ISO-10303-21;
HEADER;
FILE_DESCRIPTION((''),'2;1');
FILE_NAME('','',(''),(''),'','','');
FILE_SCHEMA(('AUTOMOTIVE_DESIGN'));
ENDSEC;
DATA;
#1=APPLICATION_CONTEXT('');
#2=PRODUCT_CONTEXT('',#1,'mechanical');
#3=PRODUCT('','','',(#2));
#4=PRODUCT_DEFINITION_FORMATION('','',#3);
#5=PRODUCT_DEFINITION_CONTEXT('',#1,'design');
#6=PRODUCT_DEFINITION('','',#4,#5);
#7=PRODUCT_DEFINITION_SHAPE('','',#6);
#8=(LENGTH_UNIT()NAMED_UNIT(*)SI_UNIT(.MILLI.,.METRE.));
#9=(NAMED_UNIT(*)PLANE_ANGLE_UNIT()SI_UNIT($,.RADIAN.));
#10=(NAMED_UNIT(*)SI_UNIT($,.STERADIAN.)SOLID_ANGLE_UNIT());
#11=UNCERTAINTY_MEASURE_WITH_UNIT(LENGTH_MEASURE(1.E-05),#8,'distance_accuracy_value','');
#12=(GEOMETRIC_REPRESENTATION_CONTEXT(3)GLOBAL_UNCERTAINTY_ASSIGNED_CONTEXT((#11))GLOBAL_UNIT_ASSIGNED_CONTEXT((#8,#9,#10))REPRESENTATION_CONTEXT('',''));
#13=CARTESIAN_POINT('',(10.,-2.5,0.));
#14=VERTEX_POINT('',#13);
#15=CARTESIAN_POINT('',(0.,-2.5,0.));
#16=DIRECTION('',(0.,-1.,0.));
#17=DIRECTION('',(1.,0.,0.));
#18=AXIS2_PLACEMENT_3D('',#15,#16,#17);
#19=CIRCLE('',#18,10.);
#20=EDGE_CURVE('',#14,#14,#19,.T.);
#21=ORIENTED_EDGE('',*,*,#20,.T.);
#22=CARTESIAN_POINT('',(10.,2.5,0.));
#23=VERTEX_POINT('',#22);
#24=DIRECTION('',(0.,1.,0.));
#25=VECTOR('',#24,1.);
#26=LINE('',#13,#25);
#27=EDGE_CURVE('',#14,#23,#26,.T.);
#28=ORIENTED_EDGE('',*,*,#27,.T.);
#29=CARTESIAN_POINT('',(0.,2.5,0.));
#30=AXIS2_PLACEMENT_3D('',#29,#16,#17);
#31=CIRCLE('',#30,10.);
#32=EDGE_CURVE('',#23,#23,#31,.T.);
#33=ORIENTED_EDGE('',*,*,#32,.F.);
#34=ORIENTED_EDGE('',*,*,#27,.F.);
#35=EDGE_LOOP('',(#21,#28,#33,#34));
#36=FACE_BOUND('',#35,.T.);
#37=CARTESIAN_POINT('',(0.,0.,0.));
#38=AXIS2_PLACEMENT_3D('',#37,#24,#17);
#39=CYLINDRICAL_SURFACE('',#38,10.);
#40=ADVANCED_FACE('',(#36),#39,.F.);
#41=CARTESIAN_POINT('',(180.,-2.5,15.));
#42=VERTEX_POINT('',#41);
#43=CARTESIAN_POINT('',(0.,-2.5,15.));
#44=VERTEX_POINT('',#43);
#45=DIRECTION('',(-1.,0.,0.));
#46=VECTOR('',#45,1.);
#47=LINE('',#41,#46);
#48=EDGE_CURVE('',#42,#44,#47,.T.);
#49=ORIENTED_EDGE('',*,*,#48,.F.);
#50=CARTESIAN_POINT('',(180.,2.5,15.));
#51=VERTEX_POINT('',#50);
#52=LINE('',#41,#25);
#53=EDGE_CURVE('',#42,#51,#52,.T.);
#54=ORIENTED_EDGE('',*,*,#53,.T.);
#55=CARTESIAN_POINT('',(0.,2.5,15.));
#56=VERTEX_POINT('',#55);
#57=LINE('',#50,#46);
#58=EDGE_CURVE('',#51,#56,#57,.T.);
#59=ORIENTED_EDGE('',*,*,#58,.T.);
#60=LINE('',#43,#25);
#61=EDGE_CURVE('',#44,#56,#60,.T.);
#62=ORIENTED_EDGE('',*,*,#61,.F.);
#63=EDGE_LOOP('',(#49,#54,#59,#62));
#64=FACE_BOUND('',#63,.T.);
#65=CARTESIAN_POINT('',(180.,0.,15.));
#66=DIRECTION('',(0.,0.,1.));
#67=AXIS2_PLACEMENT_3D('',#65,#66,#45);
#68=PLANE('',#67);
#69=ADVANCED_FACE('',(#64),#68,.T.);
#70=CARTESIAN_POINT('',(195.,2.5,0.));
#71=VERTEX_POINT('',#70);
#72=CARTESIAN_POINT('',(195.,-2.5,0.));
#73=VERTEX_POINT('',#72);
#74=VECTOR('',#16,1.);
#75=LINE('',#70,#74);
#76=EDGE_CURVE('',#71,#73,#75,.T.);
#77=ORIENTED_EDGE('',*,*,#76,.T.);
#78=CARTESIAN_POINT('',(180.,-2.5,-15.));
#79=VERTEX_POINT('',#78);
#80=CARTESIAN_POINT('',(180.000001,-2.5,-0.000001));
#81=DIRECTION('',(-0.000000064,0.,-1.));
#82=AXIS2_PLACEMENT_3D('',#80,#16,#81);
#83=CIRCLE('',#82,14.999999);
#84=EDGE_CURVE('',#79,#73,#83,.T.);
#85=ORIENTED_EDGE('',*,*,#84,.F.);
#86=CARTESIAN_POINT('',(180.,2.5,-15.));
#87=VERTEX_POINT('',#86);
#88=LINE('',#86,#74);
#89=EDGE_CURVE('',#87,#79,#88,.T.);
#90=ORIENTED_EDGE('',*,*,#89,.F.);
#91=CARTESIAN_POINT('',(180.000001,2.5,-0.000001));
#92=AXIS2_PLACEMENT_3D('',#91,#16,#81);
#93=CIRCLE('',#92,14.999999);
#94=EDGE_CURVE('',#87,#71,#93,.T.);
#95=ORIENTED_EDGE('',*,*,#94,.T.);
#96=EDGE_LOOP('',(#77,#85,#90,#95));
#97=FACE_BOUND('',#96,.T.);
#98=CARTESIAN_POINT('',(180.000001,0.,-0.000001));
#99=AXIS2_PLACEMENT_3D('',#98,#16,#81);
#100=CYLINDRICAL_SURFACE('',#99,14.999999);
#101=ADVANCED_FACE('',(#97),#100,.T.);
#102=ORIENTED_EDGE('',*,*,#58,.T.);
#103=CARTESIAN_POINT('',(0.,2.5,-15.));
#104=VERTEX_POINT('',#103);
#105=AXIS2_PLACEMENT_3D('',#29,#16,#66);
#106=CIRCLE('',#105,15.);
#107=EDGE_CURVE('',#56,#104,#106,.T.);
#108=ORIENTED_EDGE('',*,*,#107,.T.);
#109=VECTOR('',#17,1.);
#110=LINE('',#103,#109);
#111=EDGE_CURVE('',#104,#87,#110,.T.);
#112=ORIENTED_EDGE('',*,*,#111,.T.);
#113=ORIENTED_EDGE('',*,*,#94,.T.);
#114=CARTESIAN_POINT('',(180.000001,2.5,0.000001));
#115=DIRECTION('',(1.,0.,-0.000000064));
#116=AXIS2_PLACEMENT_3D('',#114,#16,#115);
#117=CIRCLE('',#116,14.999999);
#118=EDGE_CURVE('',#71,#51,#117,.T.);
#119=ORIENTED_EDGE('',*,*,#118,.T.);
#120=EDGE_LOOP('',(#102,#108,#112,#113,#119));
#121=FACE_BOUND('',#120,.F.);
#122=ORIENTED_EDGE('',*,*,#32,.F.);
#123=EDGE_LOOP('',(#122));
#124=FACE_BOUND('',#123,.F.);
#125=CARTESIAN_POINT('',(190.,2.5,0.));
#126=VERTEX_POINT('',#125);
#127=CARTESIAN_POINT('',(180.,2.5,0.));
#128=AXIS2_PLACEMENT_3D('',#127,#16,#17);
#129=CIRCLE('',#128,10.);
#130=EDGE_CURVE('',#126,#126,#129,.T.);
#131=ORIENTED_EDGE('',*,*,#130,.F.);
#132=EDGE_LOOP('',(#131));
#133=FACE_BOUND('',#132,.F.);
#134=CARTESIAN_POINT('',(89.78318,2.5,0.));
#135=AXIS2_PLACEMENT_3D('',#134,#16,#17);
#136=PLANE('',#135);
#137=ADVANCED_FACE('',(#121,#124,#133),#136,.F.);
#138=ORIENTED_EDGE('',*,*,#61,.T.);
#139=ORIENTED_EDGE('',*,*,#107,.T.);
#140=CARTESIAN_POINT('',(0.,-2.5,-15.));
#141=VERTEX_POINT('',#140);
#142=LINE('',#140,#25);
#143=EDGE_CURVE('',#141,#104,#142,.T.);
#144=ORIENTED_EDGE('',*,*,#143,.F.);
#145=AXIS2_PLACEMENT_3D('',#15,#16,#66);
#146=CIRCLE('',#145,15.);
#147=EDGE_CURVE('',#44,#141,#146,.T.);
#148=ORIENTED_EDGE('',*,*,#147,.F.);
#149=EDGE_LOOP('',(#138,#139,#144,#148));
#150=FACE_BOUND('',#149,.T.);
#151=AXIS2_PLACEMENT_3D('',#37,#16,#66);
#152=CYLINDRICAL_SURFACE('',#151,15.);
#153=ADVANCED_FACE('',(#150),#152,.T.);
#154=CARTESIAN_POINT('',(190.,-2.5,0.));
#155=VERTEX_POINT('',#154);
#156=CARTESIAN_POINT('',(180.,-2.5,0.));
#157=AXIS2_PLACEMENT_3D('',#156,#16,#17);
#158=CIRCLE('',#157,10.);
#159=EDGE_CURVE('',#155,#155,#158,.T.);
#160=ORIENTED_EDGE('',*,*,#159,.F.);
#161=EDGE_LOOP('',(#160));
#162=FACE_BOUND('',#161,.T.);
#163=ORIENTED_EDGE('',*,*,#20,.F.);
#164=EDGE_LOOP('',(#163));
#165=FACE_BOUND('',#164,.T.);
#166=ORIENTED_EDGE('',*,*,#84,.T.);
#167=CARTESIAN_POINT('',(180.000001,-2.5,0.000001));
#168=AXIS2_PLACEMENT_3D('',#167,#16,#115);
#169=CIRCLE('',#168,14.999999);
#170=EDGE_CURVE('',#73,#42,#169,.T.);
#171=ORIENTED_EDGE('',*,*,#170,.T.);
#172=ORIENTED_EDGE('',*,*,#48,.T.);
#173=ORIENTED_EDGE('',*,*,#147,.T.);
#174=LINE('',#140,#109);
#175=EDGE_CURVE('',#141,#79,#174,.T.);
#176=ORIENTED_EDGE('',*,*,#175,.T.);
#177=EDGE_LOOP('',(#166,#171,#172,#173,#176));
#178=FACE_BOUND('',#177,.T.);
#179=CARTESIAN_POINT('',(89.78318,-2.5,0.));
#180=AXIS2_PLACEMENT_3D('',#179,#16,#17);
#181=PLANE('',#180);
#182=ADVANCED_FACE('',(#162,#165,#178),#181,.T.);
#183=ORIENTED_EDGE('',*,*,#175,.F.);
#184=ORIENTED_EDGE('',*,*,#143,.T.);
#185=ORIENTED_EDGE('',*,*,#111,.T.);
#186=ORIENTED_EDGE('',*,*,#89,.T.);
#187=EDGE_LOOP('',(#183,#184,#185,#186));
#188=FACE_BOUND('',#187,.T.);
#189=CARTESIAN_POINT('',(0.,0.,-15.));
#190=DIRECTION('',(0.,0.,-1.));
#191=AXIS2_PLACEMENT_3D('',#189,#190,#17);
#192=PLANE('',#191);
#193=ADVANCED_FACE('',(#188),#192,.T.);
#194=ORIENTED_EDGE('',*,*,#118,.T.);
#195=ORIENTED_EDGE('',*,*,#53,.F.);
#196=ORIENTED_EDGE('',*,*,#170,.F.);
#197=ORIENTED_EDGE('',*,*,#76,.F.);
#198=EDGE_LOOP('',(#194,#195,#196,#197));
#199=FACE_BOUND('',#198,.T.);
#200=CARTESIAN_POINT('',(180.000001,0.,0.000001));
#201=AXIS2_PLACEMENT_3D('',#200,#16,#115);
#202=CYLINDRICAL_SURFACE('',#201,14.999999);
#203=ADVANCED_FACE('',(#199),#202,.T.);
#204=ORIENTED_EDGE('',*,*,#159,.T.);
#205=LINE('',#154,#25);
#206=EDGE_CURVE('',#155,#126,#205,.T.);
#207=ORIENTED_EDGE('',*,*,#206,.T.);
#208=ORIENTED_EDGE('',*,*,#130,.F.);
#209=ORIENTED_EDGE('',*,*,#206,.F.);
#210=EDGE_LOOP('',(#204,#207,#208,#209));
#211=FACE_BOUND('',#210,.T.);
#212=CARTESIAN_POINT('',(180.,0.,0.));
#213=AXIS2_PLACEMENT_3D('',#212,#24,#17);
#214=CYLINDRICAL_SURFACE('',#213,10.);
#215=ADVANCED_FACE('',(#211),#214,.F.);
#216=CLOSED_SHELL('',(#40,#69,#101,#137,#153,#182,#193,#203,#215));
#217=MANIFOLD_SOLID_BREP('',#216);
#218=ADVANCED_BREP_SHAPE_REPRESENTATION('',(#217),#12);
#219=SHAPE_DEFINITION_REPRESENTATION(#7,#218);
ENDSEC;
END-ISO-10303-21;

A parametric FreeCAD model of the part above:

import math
import FreeCAD as App
import Part
import Sketcher
Q = App.Units.Quantity

doc = App.newDocument("Part")
params = doc.addObject("Spreadsheet::Sheet", "Params")
for row, (alias, value) in enumerate([
    ("sketch1_diameter", "20 mm"),
    ("sketch1_radius", "14.999999 mm"),
    ("sketch1_width", "180 mm"),
    ("pad1_length", "5 mm"),
], start=1):
    params.set(f"A{row}", alias)
    params.set(f"B{row}", "=" + value)
    params.setAlias(f"B{row}", alias)

body = doc.addObject("PartDesign::Body", "Body")

# Sketch on XZ plane
sketch1 = doc.addObject("Sketcher::SketchObject", "Sketch")
body.addObject(sketch1)
sketch1.AttachmentSupport = (doc.XZ_Plane, [""])
sketch1.MapMode = "FlatFace"
sketch1.addGeometry([
    Part.LineSegment(App.Vector(0, -15, 0), App.Vector(180, -15, 0)),  # 0
    Part.ArcOfCircle(Part.Circle(App.Vector(180, 0, 0), App.Vector(0, 0, 1), 15), math.radians(-90), math.radians(0)),  # 1
    Part.ArcOfCircle(Part.Circle(App.Vector(180, 0, 0), App.Vector(0, 0, 1), 15), math.radians(0), math.radians(90)),  # 2
    Part.LineSegment(App.Vector(180, 15, 0), App.Vector(0, 15, 0)),  # 3
    Part.ArcOfCircle(Part.Circle(App.Vector(0, 0, 0), App.Vector(0, 0, 1), 15), math.radians(90), math.radians(270)),  # 4
    Part.Circle(App.Vector(0, 0, 0), App.Vector(0, 0, 1), 10),  # 5
    Part.Circle(App.Vector(180, 0, 0), App.Vector(0, 0, 1), 10),  # 6
], False)
sketch1.addConstraint([
    Sketcher.Constraint("Tangent", 0, 2, 1, 1),
    Sketcher.Constraint("Tangent", 1, 2, 2, 1),
    Sketcher.Constraint("Tangent", 2, 2, 3, 1),
    Sketcher.Constraint("Tangent", 3, 2, 4, 1),
    Sketcher.Constraint("Tangent", 4, 2, 0, 1),
    Sketcher.Constraint("Horizontal", 0),
    Sketcher.Constraint("Horizontal", 3),
    Sketcher.Constraint("Coincident", 4, 3, -1, 1),
    Sketcher.Constraint("Coincident", 5, 3, -1, 1),
    Sketcher.Constraint("Coincident", 6, 3, 1, 3),
    Sketcher.Constraint("Equal", 1, 2),
    Sketcher.Constraint("Equal", 5, 6),
    Sketcher.Constraint("PointOnObject", 1, 2, -1),
    Sketcher.Constraint("Diameter", 5, Q("20 mm")),
    Sketcher.Constraint("Radius", 1, Q("14.999999 mm")),
    Sketcher.Constraint("DistanceX", 0, 1, 0, 2, Q("180 mm")),
])
sketch1.setExpression("Constraints[13]", "Params.sketch1_diameter")
sketch1.setExpression("Constraints[14]", "Params.sketch1_radius")
sketch1.setExpression("Constraints[15]", "Params.sketch1_width")
pad1 = doc.addObject("PartDesign::Pad", "Pad")
body.addObject(pad1)
pad1.Profile = sketch1
pad1.setExpression("Length", "Params.pad1_length")
pad1.Midplane = True

doc.recompute()
